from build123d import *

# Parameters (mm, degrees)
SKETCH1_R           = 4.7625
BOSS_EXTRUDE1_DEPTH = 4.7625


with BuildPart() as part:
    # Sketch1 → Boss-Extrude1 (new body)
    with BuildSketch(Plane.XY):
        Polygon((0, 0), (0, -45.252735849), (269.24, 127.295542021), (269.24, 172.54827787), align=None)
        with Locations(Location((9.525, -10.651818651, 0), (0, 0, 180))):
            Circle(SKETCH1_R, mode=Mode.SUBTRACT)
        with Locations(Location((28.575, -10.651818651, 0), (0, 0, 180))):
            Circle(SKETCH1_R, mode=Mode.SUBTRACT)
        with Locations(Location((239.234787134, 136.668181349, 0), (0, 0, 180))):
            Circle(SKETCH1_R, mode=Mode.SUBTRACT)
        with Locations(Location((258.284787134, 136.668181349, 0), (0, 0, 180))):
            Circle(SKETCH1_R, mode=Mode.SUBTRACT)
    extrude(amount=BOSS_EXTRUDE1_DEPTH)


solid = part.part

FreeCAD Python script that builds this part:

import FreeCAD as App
import Part
import Sketcher
from FreeCAD import Vector
Q = App.Units.Quantity


def add_polygon(sketch, points):
    """Adds a closed chain of lines whose ends are joined by coincident constraints."""
    first, n = sketch.GeometryCount, len(points)
    for a, b in zip(points, points[1:] + points[:1]):
        sketch.addGeometry(Part.LineSegment(App.Vector(*a, 0), App.Vector(*b, 0)), False)
    for i in range(n):
        sketch.addConstraint(Sketcher.Constraint("Coincident", first + i, 2, first + (i + 1) % n, 1))

doc = App.newDocument("Part")
params = doc.addObject("Spreadsheet::Sheet", "Params")
for row, (alias, value) in enumerate([
    ("sketch1_diameter", "0.375 in"),
    ("sketch1_length", "12.59 in"),
    ("pad1_length", "0.1875 in"),
], start=1):
    params.set(f"A{row}", alias)
    params.set(f"B{row}", "=" + value)
    params.setAlias(f"B{row}", alias)

body = doc.addObject("PartDesign::Body", "Body")

# Sketch on XY plane
sketch1 = body.newObject("Sketcher::SketchObject", "Sketch")
sketch1.AttachmentSupport = (doc.getObject("XY_Plane"), [""])
sketch1.MapMode = "FlatFace"
add_polygon(sketch1, [(0, 0), (0, -45.252736), (269.24, 127.295542), (269.24, 172.548278)])  # lines 0-3
sketch1.addGeometry(Part.Circle(Vector(9.525, -10.651819, 0), Vector(0, 0, 1), 4.7625), False)  # 4
sketch1.addGeometry(Part.Circle(Vector(28.575, -10.651819, 0), Vector(0, 0, 1), 4.7625), False)  # 5
sketch1.addGeometry(Part.Circle(Vector(239.234787, 136.668181, 0), Vector(0, 0, 1), 4.7625), False)  # 6
sketch1.addGeometry(Part.Circle(Vector(258.284787, 136.668181, 0), Vector(0, 0, 1), 4.7625), False)  # 7
sketch1.addConstraint([
    Sketcher.Constraint("Vertical", 0),
    Sketcher.Constraint("Vertical", 2),
    Sketcher.Constraint("Coincident", 3, 2, -1, 1),
    Sketcher.Constraint("Equal", 4, 5),
    Sketcher.Constraint("Equal", 5, 6),
    Sketcher.Constraint("Equal", 6, 7),
    Sketcher.Constraint("Parallel", 1, 3),
    Sketcher.Constraint("Horizontal", 4, 3, 5, 3),
    Sketcher.Constraint("Horizontal", 6, 3, 7, 3),
    Sketcher.Constraint("Diameter", 4, Q("0.375 in")),
    Sketcher.Constraint("DistanceX", -1, 1, 1, 2, Q("10.6 in")),
    Sketcher.Constraint("DistanceY", 5, 3, 6, 3, Q("5.8 in")),
    Sketcher.Constraint("Distance", 1, Q("12.59 in")),
    Sketcher.Constraint("DistanceX", 4, 3, 5, 3, Q("0.75 in")),
    Sketcher.Constraint("DistanceX", 6, 3, 7, 3, Q("0.75 in")),
    Sketcher.Constraint("DistanceX", -1, 1, 4, 3, Q("0.375 in")),
    Sketcher.Constraint("DistanceY", 0, 2, 0, 1, Q("45.252736 mm")),
    Sketcher.Constraint("DistanceY", 4, 3, -1, 1, Q("10.651819 mm")),
    Sketcher.Constraint("DistanceX", -1, 1, 6, 3, Q("239.234787 mm")),
])
sketch1.setExpression("Constraints[13]", "Params.sketch1_diameter")
sketch1.setExpression("Constraints[16]", "Params.sketch1_length")
pad1 = body.newObject("PartDesign::Pad", "Pad")
pad1.Profile = sketch1
pad1.setExpression("Length", "Params.pad1_length")

doc.recompute()
